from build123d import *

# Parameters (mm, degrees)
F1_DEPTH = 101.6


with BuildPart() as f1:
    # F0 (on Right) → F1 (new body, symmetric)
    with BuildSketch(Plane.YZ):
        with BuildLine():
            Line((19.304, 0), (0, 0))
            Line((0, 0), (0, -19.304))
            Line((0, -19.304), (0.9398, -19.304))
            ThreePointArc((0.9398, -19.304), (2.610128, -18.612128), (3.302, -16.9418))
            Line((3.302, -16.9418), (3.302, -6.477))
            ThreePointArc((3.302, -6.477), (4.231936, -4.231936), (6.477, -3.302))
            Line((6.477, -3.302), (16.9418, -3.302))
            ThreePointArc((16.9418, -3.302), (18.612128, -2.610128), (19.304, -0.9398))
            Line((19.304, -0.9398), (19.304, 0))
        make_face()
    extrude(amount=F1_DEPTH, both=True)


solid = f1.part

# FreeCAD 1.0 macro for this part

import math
import FreeCAD as App
import Part
import Sketcher
from FreeCAD import Vector
Q = App.Units.Quantity

doc = App.newDocument("Part")
body = doc.addObject("PartDesign::Body", "Body")

sketch1 = doc.addObject("Sketcher::SketchObject", "Sketch")
body.addObject(sketch1)
sketch1.AttachmentSupport = (doc.YZ_Plane, [""])
sketch1.MapMode = "FlatFace"
sketch1.addGeometry(Part.LineSegment(Vector(19.304, 0, 0), Vector(0, 0, 0)), False)
sketch1.addGeometry(Part.LineSegment(Vector(0, 0, 0), Vector(0, -19.304, 0)), False)
sketch1.addGeometry(Part.LineSegment(Vector(0, -19.304, 0), Vector(0.9398, -19.304, 0)), False)
sketch1.addGeometry(Part.ArcOfCircle(Part.Circle(Vector(0.939801, -16.941801, 0), Vector(0, 0, 1), 2.362199), math.radians(-90.00003), math.radians(0.00003)), False)
sketch1.addGeometry(Part.LineSegment(Vector(3.302, -16.9418, 0), Vector(3.302, -6.477, 0)), False)
sketch1.addGeometry(Part.ArcOfCircle(Part.Circle(Vector(6.477, -6.477, 0), Vector(0, 0, 1), 3.175), math.radians(90.000002), math.radians(179.999998)), False)
sketch1.addGeometry(Part.LineSegment(Vector(6.477, -3.302, 0), Vector(16.9418, -3.302, 0)), False)
sketch1.addGeometry(Part.ArcOfCircle(Part.Circle(Vector(16.941801, -0.939801, 0), Vector(0, 0, 1), 2.362199), math.radians(-90.00003), math.radians(0.00003)), False)
sketch1.addGeometry(Part.LineSegment(Vector(19.304, -0.9398, 0), Vector(19.304, 0, 0)), False)
sketch1.addConstraint(Sketcher.Constraint("Coincident", 0, 2, 1, 1))
sketch1.addConstraint(Sketcher.Constraint("Coincident", 1, 2, 2, 1))
sketch1.addConstraint(Sketcher.Constraint("Tangent", 2, 2, 3, 1))
sketch1.addConstraint(Sketcher.Constraint("Tangent", 3, 2, 4, 1))
sketch1.addConstraint(Sketcher.Constraint("Tangent", 4, 2, 5, 2))
sketch1.addConstraint(Sketcher.Constraint("Tangent", 5, 1, 6, 1))
sketch1.addConstraint(Sketcher.Constraint("Tangent", 6, 2, 7, 1))
sketch1.addConstraint(Sketcher.Constraint("Tangent", 7, 2, 8, 1))
sketch1.addConstraint(Sketcher.Constraint("Coincident", 8, 2, 0, 1))
sketch1.addConstraint(Sketcher.Constraint("Horizontal", 0))
sketch1.addConstraint(Sketcher.Constraint("Vertical", 1))
sketch1.addConstraint(Sketcher.Constraint("Horizontal", 2))
sketch1.addConstraint(Sketcher.Constraint("Vertical", 4))
sketch1.addConstraint(Sketcher.Constraint("Horizontal", 6))
sketch1.addConstraint(Sketcher.Constraint("Vertical", 8))
sketch1.addConstraint(Sketcher.Constraint("Coincident", 0, 2, -1, 1))
sketch1.addConstraint(Sketcher.Constraint("Equal", 3, 7))
sketch1.addConstraint(Sketcher.Constraint("Equal", 0, 1))
sketch1.addConstraint(Sketcher.Constraint("Equal", 6, 4))
sketch1.addConstraint(Sketcher.Constraint("Radius", 3, Q("0.093 in")))
sketch1.addConstraint(Sketcher.Constraint("Radius", 5, Q("0.125 in")))
sketch1.addConstraint(Sketcher.Constraint("DistanceX", 0, 2, 0, 1, Q("0.76 in")))
sketch1.addConstraint(Sketcher.Constraint("DistanceX", 2, 1, 2, 2, Q("0.037 in")))
pad1 = doc.addObject("PartDesign::Pad", "Pad")
body.addObject(pad1)
pad1.Profile = sketch1
pad1.Length = Q("8 in")
pad1.Midplane = True

doc.recompute()
